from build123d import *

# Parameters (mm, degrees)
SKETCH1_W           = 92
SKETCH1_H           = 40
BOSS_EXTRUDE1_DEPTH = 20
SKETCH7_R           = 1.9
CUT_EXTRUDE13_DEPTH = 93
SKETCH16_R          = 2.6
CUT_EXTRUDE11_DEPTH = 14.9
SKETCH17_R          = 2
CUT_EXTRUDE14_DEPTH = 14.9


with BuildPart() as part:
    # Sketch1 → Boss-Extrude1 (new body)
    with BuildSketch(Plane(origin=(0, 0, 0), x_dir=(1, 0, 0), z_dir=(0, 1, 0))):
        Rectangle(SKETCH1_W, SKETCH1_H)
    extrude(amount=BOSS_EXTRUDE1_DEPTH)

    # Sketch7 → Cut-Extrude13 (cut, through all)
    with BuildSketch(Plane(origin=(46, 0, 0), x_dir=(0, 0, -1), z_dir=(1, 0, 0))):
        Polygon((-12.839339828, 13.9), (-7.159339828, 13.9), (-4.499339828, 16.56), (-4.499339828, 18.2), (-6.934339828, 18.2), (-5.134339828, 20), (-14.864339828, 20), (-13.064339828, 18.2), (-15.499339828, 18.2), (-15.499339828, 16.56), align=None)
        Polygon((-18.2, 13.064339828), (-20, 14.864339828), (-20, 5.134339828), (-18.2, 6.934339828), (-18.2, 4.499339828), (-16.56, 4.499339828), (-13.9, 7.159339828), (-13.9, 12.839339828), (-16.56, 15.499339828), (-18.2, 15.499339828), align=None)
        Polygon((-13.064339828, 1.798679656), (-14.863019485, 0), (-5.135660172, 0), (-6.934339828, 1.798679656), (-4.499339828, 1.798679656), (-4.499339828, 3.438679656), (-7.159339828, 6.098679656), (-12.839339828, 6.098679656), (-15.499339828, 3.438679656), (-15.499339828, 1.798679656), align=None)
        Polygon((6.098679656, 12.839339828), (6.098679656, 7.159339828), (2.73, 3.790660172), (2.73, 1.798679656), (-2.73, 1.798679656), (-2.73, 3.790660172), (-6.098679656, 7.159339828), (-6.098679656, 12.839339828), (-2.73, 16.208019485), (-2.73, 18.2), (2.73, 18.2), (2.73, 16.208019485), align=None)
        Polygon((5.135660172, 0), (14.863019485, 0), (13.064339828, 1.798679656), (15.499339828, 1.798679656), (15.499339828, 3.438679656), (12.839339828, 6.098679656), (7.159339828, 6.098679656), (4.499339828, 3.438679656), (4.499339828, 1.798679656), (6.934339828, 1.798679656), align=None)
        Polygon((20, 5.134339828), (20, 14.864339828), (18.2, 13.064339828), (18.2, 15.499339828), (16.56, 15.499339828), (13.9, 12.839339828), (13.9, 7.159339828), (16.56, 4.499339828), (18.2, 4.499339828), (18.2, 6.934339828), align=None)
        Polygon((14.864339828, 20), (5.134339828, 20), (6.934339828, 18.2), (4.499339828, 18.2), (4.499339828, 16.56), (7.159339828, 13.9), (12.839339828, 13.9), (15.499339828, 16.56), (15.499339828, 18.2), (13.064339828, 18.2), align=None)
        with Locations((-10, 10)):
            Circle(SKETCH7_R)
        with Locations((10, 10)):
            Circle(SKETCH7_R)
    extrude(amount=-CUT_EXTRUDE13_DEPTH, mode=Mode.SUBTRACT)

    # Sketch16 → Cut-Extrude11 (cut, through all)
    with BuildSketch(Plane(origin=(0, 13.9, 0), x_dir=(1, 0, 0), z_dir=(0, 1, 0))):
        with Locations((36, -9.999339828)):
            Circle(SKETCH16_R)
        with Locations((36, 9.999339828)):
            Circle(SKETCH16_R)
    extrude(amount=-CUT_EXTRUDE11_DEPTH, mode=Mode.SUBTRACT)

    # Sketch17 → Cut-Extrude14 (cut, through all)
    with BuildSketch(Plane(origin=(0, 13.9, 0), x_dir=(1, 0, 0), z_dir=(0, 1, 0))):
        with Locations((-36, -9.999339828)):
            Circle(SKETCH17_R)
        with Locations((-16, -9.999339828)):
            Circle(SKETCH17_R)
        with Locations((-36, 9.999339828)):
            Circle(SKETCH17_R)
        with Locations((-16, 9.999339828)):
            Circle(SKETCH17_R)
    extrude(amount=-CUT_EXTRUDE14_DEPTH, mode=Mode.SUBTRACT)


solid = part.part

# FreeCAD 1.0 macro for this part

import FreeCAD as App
import Part
import Sketcher

V = App.Vector
Q = App.Units.Quantity


def add_polygon(sketch, points):
    """Adds a closed chain of lines whose ends are joined by coincident constraints."""
    first, n = sketch.GeometryCount, len(points)
    for a, b in zip(points, points[1:] + points[:1]):
        sketch.addGeometry(Part.LineSegment(App.Vector(*a, 0), App.Vector(*b, 0)), False)
    for i in range(n):
        sketch.addConstraint(Sketcher.Constraint("Coincident", first + i, 2, first + (i + 1) % n, 1))

doc = App.newDocument("Part")
body = doc.addObject("PartDesign::Body", "Body")

# Sketch on XZ plane
sketch1 = doc.addObject("Sketcher::SketchObject", "Sketch")
body.addObject(sketch1)
sketch1.AttachmentSupport = (doc.XZ_Plane, [""])
sketch1.MapMode = "FlatFace"
add_polygon(sketch1, [(-46, -20), (-46, 20), (46, 20), (46, -20)])  # lines 0-3
sketch1.addConstraint([
    Sketcher.Constraint("Vertical", 0),
    Sketcher.Constraint("Horizontal", 1),
    Sketcher.Constraint("Vertical", 2),
    Sketcher.Constraint("Horizontal", 3),
    Sketcher.Constraint("Symmetric", 0, 2, 2, 2, -1, 1),
    Sketcher.Constraint("DistanceX", 1, 1, 1, 2, Q("92 mm")),
    Sketcher.Constraint("DistanceY", 0, 1, 0, 2, Q("40 mm")),
])
pad1 = doc.addObject("PartDesign::Pad", "Pad")
body.addObject(pad1)
pad1.Profile = sketch1
pad1.Length = 20
pad1.Reversed = True

# Sketch on YZ plane
sketch2 = doc.addObject("Sketcher::SketchObject", "Sketch001")
body.addObject(sketch2)
sketch2.AttachmentSupport = (doc.YZ_Plane, [""])
sketch2.MapMode = "FlatFace"
sketch2.AttachmentOffset = App.Placement(V(0, 0, 46), App.Rotation())
add_polygon(sketch2, [(13.9, 12.8), (13.9, 7.2), (16.6, 4.5), (18.2, 4.5), (18.2, 6.9), (20, 5.1), (20, 14.9), (18.2, 13.1), (18.2, 15.5), (16.6, 15.5)])  # lines 0-9
add_polygon(sketch2, [(13.1, 18.2), (14.9, 20), (5.1, 20), (6.9, 18.2), (4.5, 18.2), (4.5, 16.6), (7.2, 13.9), (12.8, 13.9), (15.5, 16.6), (15.5, 18.2)])  # lines 10-19
add_polygon(sketch2, [(1.8, 13.1), (0, 14.9), (0, 5.1), (1.8, 6.9), (1.8, 4.5), (3.4, 4.5), (6.1, 7.2), (6.1, 12.8), (3.4, 15.5), (1.8, 15.5)])  # lines 20-29
add_polygon(sketch2, [(7.2, -6.1), (12.8, -6.1), (16.2, -2.7), (18.2, -2.7), (18.2, 2.7), (16.2, 2.7), (12.8, 6.1), (7.2, 6.1), (3.8, 2.7), (1.8, 2.7), (1.8, -2.7), (3.8, -2.7)])  # lines 30-41
add_polygon(sketch2, [(0, -5.1), (0, -14.9), (1.8, -13.1), (1.8, -15.5), (3.4, -15.5), (6.1, -12.8), (6.1, -7.2), (3.4, -4.5), (1.8, -4.5), (1.8, -6.9)])  # lines 42-51
add_polygon(sketch2, [(5.1, -20), (14.9, -20), (13.1, -18.2), (15.5, -18.2), (15.5, -16.6), (12.8, -13.9), (7.2, -13.9), (4.5, -16.6), (4.5, -18.2), (6.9, -18.2)])  # lines 52-61
add_polygon(sketch2, [(20, -14.9), (20, -5.1), (18.2, -6.9), (18.2, -4.5), (16.6, -4.5), (13.9, -7.2), (13.9, -12.8), (16.6, -15.5), (18.2, -15.5), (18.2, -13.1)])  # lines 62-71
sketch2.addGeometry(Part.Circle(V(10, 10, 0), V(0, 0, 1), 1.9), False)  # 72
sketch2.addGeometry(Part.Circle(V(10, -10, 0), V(0, 0, 1), 1.9), False)  # 73
sketch2.addConstraint([
    Sketcher.Constraint("Vertical", 0),
    Sketcher.Constraint("Horizontal", 2),
    Sketcher.Constraint("Vertical", 3),
    Sketcher.Constraint("Vertical", 5),
    Sketcher.Constraint("Vertical", 7),
    Sketcher.Constraint("Horizontal", 8),
    Sketcher.Constraint("Horizontal", 11),
    Sketcher.Constraint("Horizontal", 13),
    Sketcher.Constraint("Vertical", 14),
    Sketcher.Constraint("Horizontal", 16),
    Sketcher.Constraint("Vertical", 18),
    Sketcher.Constraint("Horizontal", 19),
    Sketcher.Constraint("Vertical", 21),
    Sketcher.Constraint("Vertical", 23),
    Sketcher.Constraint("Horizontal", 24),
    Sketcher.Constraint("Vertical", 26),
    Sketcher.Constraint("Horizontal", 28),
    Sketcher.Constraint("Vertical", 29),
    Sketcher.Constraint("Horizontal", 30),
    Sketcher.Constraint("Horizontal", 32),
    Sketcher.Constraint("Vertical", 33),
    Sketcher.Constraint("Horizontal", 34),
    Sketcher.Constraint("Horizontal", 36),
    Sketcher.Constraint("Horizontal", 38),
    Sketcher.Constraint("Vertical", 39),
    Sketcher.Constraint("Horizontal", 40),
    Sketcher.Constraint("Vertical", 42),
    Sketcher.Constraint("Vertical", 44),
    Sketcher.Constraint("Horizontal", 45),
    Sketcher.Constraint("Vertical", 47),
    Sketcher.Constraint("Horizontal", 49),
    Sketcher.Constraint("Vertical", 50),
    Sketcher.Constraint("Horizontal", 52),
    Sketcher.Constraint("Horizontal", 54),
    Sketcher.Constraint("Vertical", 55),
    Sketcher.Constraint("Horizontal", 57),
    Sketcher.Constraint("Vertical", 59),
    Sketcher.Constraint("Horizontal", 60),
    Sketcher.Constraint("Vertical", 62),
    Sketcher.Constraint("Vertical", 64),
    Sketcher.Constraint("Horizontal", 65),
    Sketcher.Constraint("Vertical", 67),
    Sketcher.Constraint("Horizontal", 69),
    Sketcher.Constraint("Vertical", 70),
    Sketcher.Constraint("Equal", 72, 73),
    Sketcher.Constraint("Symmetric", 20, 2, 42, 2, -1, 1),
    Sketcher.Constraint("Symmetric", 72, 3, 73, 3, -1),
    Sketcher.Constraint("Symmetric", 31, 2, 34, 2, -1),
    Sketcher.Constraint("Symmetric", 30, 2, 35, 2, -1),
    Sketcher.Constraint("Symmetric", 37, 2, 40, 2, -1),
    Sketcher.Constraint("Symmetric", 29, 2, 43, 2, -1),
    Sketcher.Constraint("Symmetric", 27, 2, 45, 2, -1),
    Sketcher.Constraint("Symmetric", 26, 2, 46, 2, -1),
    Sketcher.Constraint("Symmetric", 24, 2, 48, 2, -1),
    Sketcher.Constraint("Symmetric", 22, 2, 50, 2, -1),
    Sketcher.Constraint("Symmetric", 21, 2, 51, 2, -1),
    Sketcher.Constraint("Symmetric", 10, 2, 52, 2, -1),
    Sketcher.Constraint("Symmetric", 19, 2, 53, 2, -1),
    Sketcher.Constraint("Symmetric", 17, 2, 55, 2, -1),
    Sketcher.Constraint("Symmetric", 16, 2, 56, 2, -1),
    Sketcher.Constraint("Symmetric", 14, 2, 58, 2, -1),
    Sketcher.Constraint("Symmetric", 12, 2, 60, 2, -1),
    Sketcher.Constraint("Symmetric", 4, 2, 62, 2, -1),
    Sketcher.Constraint("Symmetric", 3, 2, 63, 2, -1),
    Sketcher.Constraint("Symmetric", 1, 2, 65, 2, -1),
    Sketcher.Constraint("Symmetric", 0, 2, 66, 2, -1),
    Sketcher.Constraint("Symmetric", 8, 2, 68, 2, -1),
    Sketcher.Constraint("Symmetric", 6, 2, 70, 2, -1),
    Sketcher.Constraint("Parallel", 1, 4),
    Sketcher.Constraint("Perpendicular", 4, 6),
    Sketcher.Constraint("Parallel", 6, 9),
    Sketcher.Constraint("Parallel", 9, 10),
    Sketcher.Constraint("Perpendicular", 10, 12),
    Sketcher.Constraint("Parallel", 12, 15),
    Sketcher.Constraint("Perpendicular", 15, 17),
    Sketcher.Constraint("Perpendicular", 17, 20),
    Sketcher.Constraint("Perpendicular", 20, 22),
    Sketcher.Constraint("Parallel", 22, 25),
    Sketcher.Constraint("Perpendicular", 25, 27),
    Sketcher.Constraint("Perpendicular", 27, 31),
    Sketcher.Constraint("Perpendicular", 31, 35),
    Sketcher.Constraint("Perpendicular", 35, 37),
    Sketcher.Constraint("Perpendicular", 37, 41),
    Sketcher.Constraint("Perpendicular", 46, 48),
    Sketcher.Constraint("Perpendicular", 56, 58),
    Sketcher.Constraint("Parallel", 58, 61),
    Sketcher.Constraint("Perpendicular", 66, 68),
    Sketcher.Constraint("Parallel", 68, 71),
    Sketcher.Constraint("Horizontal", 14, 2, 17, 2),
    Sketcher.Constraint("Horizontal", 13, 2, 18, 2),
    Sketcher.Constraint("Horizontal", 3, 2, 22, 2),
    Sketcher.Constraint("Horizontal", 2, 2, 23, 2),
    Sketcher.Constraint("Horizontal", 0, 2, 25, 2),
    Sketcher.Constraint("Horizontal", 9, 2, 26, 2),
    Sketcher.Constraint("Horizontal", 8, 2, 27, 2),
    Sketcher.Constraint("Horizontal", 6, 2, 29, 2),
    Sketcher.Constraint("Horizontal", 34, 2, 37, 2),
    Sketcher.Constraint("Vertical", 3, 2, 6, 2),
    Sketcher.Constraint("Vertical", 1, 2, 8, 2),
    Sketcher.Constraint("Vertical", 23, 2, 28, 2),
    Sketcher.Constraint("Vertical", 16, 2, 30, 2),
    Sketcher.Constraint("Vertical", 7, 2, 32, 2),
    Sketcher.Constraint("Vertical", 15, 2, 36, 2),
    Sketcher.Constraint("Vertical", 29, 2, 38, 2),
    Sketcher.Constraint("Equal", 13, 19),
    Sketcher.Constraint("Equal", 8, 24),
    Sketcher.Constraint("Equal", 34, 38),
    Sketcher.Constraint("Equal", 57, 0),
    Sketcher.Constraint("Equal", 60, 3),
    Sketcher.Constraint("Equal", 52, 5),
    Sketcher.Constraint("Equal", 3, 7),
    Sketcher.Constraint("Equal", 69, 14),
    Sketcher.Constraint("Equal", 6, 10),
    Sketcher.Constraint("Diameter", 72, Q("3.8 mm")),
    Sketcher.Constraint("DistanceX", -1, 1, 72, 3, Q("10 mm")),
    Sketcher.Constraint("DistanceY", -1, 1, 72, 3, Q("10 mm")),
    Sketcher.Constraint("DistanceX", -1, 1, 4, 2, Q("20 mm")),
    Sketcher.Constraint("DistanceY", -1, 1, 10, 2, Q("20 mm")),
    Sketcher.Constraint("DistanceX", 2, 1, 2, 2, Q("1.64 mm")),
    Sketcher.Constraint("DistanceX", 11, 2, 11, 1, Q("9.73 mm")),
    Sketcher.Constraint("DistanceX", 16, 1, 16, 2, Q("5.68 mm")),
    Sketcher.Constraint("DistanceY", 33, 1, 33, 2, Q("5.46 mm")),
    Sketcher.Constraint("DistanceX", -1, 1, 0, 2, Q("13.9 mm")),
    Sketcher.Constraint("DistanceX", -1, 1, 2, 2, Q("18.2 mm")),
    Sketcher.Constraint("DistanceX", 32, 1, 32, 2, Q("1.991981 mm")),
    Sketcher.Constraint("DistanceY", 21, 2, 21, 1, Q("9.727359 mm")),
    Sketcher.Constraint("DistanceY", -1, 1, 0, 2, Q("7.15934 mm")),
])
pocket1 = doc.addObject("PartDesign::Pocket", "Pocket")
body.addObject(pocket1)
pocket1.Profile = sketch2
pocket1.Type = "ThroughAll"

# Sketch on XZ plane
sketch3 = doc.addObject("Sketcher::SketchObject", "Sketch002")
body.addObject(sketch3)
sketch3.AttachmentSupport = (doc.XZ_Plane, [""])
sketch3.MapMode = "FlatFace"
sketch3.AttachmentOffset = App.Placement(V(0, 0, -13.9), App.Rotation())
sketch3.addGeometry([
    Part.Circle(V(36, 10, 0), V(0, 0, 1), 2.6),
    Part.Circle(V(36, -10, 0), V(0, 0, 1), 2.6),
], False)
sketch3.addConstraint([
    Sketcher.Constraint("Equal", 0, 1),
    Sketcher.Constraint("Symmetric", 0, 3, 1, 3, -1),
    Sketcher.Constraint("Diameter", 0, Q("5.2 mm")),
    Sketcher.Constraint("DistanceX", -1, 1, 0, 3, Q("36 mm")),
    Sketcher.Constraint("DistanceY", -1, 1, 0, 3, Q("9.99934 mm")),
])
pocket2 = doc.addObject("PartDesign::Pocket", "Pocket001")
body.addObject(pocket2)
pocket2.Profile = sketch3
pocket2.Type = "ThroughAll"
pocket2.Reversed = True

# Sketch on XZ plane
sketch4 = doc.addObject("Sketcher::SketchObject", "Sketch003")
body.addObject(sketch4)
sketch4.AttachmentSupport = (doc.XZ_Plane, [""])
sketch4.MapMode = "FlatFace"
sketch4.AttachmentOffset = App.Placement(V(0, 0, -13.9), App.Rotation())
sketch4.addGeometry([
    Part.Circle(V(-36, 10, 0), V(0, 0, 1), 2),
    Part.Circle(V(-16, 10, 0), V(0, 0, 1), 2),
    Part.Circle(V(-36, -10, 0), V(0, 0, 1), 2),
    Part.Circle(V(-16, -10, 0), V(0, 0, 1), 2),
], False)
sketch4.addConstraint([
    Sketcher.Constraint("Equal", 0, 1),
    Sketcher.Constraint("Equal", 1, 2),
    Sketcher.Constraint("Equal", 2, 3),
    Sketcher.Constraint("Symmetric", 0, 3, 2, 3, -1),
    Sketcher.Constraint("Symmetric", 1, 3, 3, 3, -1),
    Sketcher.Constraint("Horizontal", 0, 3, 1, 3),
    Sketcher.Constraint("Diameter", 0, Q("4 mm")),
    Sketcher.Constraint("DistanceX", 0, 3, -1, 1, Q("36 mm")),
    Sketcher.Constraint("DistanceX", 1, 3, -1, 1, Q("16 mm")),
    Sketcher.Constraint("DistanceY", -1, 1, 0, 3, Q("9.99934 mm")),
])
pocket3 = doc.addObject("PartDesign::Pocket", "Pocket002")
body.addObject(pocket3)
pocket3.Profile = sketch4
pocket3.Type = "ThroughAll"
pocket3.Reversed = True

doc.recompute()
